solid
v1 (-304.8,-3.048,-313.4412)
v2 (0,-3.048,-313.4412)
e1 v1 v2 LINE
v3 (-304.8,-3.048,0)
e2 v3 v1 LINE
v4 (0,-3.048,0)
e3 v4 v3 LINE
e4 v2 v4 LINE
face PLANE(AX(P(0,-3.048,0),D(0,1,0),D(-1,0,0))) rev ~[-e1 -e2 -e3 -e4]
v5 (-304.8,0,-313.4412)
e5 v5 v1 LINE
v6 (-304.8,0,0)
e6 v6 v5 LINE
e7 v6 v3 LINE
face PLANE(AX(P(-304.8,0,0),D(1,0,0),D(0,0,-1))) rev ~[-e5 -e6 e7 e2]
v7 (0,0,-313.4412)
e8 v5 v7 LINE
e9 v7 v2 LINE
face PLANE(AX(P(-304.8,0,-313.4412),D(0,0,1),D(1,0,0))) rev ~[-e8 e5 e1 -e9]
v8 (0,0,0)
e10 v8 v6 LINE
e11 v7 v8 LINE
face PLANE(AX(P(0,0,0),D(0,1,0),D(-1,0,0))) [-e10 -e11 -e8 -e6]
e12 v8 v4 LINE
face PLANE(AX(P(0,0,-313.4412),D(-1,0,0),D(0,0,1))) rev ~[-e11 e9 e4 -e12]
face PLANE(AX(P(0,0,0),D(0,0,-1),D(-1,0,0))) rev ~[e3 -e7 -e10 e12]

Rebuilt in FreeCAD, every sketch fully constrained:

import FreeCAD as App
import Part
import Sketcher
Q = App.Units.Quantity

doc = App.newDocument("Part")
body = doc.addObject("PartDesign::Body", "Body")

sketch1 = doc.addObject("Sketcher::SketchObject", "Sketch")
body.addObject(sketch1)
sketch1.AttachmentSupport = (doc.XZ_Plane, [""])
sketch1.MapMode = "FlatFace"
sketch1.addGeometry(Part.LineSegment(App.Vector(-304.8, 0, 0), App.Vector(0, 0, 0)), False)
sketch1.addGeometry(Part.LineSegment(App.Vector(0, 0, 0), App.Vector(0, -313.4412, 0)), False)
sketch1.addGeometry(Part.LineSegment(App.Vector(0, -313.4412, 0), App.Vector(-304.8, -313.4412, 0)), False)
sketch1.addGeometry(Part.LineSegment(App.Vector(-304.8, -313.4412, 0), App.Vector(-304.8, 0, 0)), False)
sketch1.addConstraint(Sketcher.Constraint("Coincident", 0, 2, 1, 1))
sketch1.addConstraint(Sketcher.Constraint("Coincident", 1, 2, 2, 1))
sketch1.addConstraint(Sketcher.Constraint("Coincident", 2, 2, 3, 1))
sketch1.addConstraint(Sketcher.Constraint("Coincident", 3, 2, 0, 1))
sketch1.addConstraint(Sketcher.Constraint("Horizontal", 0))
sketch1.addConstraint(Sketcher.Constraint("Vertical", 1))
sketch1.addConstraint(Sketcher.Constraint("Horizontal", 2))
sketch1.addConstraint(Sketcher.Constraint("Vertical", 3))
sketch1.addConstraint(Sketcher.Constraint("Coincident", 0, 2, -1, 1))
sketch1.addConstraint(Sketcher.Constraint("DistanceX", 0, 1, 0, 2, Q("12 in")))
sketch1.addConstraint(Sketcher.Constraint("DistanceY", 1, 2, 1, 1, Q("12.3402 in")))
pad1 = doc.addObject("PartDesign::Pad", "Pad")
body.addObject(pad1)
pad1.Profile = sketch1
pad1.Length = Q("0.12 in")

doc.recompute()
